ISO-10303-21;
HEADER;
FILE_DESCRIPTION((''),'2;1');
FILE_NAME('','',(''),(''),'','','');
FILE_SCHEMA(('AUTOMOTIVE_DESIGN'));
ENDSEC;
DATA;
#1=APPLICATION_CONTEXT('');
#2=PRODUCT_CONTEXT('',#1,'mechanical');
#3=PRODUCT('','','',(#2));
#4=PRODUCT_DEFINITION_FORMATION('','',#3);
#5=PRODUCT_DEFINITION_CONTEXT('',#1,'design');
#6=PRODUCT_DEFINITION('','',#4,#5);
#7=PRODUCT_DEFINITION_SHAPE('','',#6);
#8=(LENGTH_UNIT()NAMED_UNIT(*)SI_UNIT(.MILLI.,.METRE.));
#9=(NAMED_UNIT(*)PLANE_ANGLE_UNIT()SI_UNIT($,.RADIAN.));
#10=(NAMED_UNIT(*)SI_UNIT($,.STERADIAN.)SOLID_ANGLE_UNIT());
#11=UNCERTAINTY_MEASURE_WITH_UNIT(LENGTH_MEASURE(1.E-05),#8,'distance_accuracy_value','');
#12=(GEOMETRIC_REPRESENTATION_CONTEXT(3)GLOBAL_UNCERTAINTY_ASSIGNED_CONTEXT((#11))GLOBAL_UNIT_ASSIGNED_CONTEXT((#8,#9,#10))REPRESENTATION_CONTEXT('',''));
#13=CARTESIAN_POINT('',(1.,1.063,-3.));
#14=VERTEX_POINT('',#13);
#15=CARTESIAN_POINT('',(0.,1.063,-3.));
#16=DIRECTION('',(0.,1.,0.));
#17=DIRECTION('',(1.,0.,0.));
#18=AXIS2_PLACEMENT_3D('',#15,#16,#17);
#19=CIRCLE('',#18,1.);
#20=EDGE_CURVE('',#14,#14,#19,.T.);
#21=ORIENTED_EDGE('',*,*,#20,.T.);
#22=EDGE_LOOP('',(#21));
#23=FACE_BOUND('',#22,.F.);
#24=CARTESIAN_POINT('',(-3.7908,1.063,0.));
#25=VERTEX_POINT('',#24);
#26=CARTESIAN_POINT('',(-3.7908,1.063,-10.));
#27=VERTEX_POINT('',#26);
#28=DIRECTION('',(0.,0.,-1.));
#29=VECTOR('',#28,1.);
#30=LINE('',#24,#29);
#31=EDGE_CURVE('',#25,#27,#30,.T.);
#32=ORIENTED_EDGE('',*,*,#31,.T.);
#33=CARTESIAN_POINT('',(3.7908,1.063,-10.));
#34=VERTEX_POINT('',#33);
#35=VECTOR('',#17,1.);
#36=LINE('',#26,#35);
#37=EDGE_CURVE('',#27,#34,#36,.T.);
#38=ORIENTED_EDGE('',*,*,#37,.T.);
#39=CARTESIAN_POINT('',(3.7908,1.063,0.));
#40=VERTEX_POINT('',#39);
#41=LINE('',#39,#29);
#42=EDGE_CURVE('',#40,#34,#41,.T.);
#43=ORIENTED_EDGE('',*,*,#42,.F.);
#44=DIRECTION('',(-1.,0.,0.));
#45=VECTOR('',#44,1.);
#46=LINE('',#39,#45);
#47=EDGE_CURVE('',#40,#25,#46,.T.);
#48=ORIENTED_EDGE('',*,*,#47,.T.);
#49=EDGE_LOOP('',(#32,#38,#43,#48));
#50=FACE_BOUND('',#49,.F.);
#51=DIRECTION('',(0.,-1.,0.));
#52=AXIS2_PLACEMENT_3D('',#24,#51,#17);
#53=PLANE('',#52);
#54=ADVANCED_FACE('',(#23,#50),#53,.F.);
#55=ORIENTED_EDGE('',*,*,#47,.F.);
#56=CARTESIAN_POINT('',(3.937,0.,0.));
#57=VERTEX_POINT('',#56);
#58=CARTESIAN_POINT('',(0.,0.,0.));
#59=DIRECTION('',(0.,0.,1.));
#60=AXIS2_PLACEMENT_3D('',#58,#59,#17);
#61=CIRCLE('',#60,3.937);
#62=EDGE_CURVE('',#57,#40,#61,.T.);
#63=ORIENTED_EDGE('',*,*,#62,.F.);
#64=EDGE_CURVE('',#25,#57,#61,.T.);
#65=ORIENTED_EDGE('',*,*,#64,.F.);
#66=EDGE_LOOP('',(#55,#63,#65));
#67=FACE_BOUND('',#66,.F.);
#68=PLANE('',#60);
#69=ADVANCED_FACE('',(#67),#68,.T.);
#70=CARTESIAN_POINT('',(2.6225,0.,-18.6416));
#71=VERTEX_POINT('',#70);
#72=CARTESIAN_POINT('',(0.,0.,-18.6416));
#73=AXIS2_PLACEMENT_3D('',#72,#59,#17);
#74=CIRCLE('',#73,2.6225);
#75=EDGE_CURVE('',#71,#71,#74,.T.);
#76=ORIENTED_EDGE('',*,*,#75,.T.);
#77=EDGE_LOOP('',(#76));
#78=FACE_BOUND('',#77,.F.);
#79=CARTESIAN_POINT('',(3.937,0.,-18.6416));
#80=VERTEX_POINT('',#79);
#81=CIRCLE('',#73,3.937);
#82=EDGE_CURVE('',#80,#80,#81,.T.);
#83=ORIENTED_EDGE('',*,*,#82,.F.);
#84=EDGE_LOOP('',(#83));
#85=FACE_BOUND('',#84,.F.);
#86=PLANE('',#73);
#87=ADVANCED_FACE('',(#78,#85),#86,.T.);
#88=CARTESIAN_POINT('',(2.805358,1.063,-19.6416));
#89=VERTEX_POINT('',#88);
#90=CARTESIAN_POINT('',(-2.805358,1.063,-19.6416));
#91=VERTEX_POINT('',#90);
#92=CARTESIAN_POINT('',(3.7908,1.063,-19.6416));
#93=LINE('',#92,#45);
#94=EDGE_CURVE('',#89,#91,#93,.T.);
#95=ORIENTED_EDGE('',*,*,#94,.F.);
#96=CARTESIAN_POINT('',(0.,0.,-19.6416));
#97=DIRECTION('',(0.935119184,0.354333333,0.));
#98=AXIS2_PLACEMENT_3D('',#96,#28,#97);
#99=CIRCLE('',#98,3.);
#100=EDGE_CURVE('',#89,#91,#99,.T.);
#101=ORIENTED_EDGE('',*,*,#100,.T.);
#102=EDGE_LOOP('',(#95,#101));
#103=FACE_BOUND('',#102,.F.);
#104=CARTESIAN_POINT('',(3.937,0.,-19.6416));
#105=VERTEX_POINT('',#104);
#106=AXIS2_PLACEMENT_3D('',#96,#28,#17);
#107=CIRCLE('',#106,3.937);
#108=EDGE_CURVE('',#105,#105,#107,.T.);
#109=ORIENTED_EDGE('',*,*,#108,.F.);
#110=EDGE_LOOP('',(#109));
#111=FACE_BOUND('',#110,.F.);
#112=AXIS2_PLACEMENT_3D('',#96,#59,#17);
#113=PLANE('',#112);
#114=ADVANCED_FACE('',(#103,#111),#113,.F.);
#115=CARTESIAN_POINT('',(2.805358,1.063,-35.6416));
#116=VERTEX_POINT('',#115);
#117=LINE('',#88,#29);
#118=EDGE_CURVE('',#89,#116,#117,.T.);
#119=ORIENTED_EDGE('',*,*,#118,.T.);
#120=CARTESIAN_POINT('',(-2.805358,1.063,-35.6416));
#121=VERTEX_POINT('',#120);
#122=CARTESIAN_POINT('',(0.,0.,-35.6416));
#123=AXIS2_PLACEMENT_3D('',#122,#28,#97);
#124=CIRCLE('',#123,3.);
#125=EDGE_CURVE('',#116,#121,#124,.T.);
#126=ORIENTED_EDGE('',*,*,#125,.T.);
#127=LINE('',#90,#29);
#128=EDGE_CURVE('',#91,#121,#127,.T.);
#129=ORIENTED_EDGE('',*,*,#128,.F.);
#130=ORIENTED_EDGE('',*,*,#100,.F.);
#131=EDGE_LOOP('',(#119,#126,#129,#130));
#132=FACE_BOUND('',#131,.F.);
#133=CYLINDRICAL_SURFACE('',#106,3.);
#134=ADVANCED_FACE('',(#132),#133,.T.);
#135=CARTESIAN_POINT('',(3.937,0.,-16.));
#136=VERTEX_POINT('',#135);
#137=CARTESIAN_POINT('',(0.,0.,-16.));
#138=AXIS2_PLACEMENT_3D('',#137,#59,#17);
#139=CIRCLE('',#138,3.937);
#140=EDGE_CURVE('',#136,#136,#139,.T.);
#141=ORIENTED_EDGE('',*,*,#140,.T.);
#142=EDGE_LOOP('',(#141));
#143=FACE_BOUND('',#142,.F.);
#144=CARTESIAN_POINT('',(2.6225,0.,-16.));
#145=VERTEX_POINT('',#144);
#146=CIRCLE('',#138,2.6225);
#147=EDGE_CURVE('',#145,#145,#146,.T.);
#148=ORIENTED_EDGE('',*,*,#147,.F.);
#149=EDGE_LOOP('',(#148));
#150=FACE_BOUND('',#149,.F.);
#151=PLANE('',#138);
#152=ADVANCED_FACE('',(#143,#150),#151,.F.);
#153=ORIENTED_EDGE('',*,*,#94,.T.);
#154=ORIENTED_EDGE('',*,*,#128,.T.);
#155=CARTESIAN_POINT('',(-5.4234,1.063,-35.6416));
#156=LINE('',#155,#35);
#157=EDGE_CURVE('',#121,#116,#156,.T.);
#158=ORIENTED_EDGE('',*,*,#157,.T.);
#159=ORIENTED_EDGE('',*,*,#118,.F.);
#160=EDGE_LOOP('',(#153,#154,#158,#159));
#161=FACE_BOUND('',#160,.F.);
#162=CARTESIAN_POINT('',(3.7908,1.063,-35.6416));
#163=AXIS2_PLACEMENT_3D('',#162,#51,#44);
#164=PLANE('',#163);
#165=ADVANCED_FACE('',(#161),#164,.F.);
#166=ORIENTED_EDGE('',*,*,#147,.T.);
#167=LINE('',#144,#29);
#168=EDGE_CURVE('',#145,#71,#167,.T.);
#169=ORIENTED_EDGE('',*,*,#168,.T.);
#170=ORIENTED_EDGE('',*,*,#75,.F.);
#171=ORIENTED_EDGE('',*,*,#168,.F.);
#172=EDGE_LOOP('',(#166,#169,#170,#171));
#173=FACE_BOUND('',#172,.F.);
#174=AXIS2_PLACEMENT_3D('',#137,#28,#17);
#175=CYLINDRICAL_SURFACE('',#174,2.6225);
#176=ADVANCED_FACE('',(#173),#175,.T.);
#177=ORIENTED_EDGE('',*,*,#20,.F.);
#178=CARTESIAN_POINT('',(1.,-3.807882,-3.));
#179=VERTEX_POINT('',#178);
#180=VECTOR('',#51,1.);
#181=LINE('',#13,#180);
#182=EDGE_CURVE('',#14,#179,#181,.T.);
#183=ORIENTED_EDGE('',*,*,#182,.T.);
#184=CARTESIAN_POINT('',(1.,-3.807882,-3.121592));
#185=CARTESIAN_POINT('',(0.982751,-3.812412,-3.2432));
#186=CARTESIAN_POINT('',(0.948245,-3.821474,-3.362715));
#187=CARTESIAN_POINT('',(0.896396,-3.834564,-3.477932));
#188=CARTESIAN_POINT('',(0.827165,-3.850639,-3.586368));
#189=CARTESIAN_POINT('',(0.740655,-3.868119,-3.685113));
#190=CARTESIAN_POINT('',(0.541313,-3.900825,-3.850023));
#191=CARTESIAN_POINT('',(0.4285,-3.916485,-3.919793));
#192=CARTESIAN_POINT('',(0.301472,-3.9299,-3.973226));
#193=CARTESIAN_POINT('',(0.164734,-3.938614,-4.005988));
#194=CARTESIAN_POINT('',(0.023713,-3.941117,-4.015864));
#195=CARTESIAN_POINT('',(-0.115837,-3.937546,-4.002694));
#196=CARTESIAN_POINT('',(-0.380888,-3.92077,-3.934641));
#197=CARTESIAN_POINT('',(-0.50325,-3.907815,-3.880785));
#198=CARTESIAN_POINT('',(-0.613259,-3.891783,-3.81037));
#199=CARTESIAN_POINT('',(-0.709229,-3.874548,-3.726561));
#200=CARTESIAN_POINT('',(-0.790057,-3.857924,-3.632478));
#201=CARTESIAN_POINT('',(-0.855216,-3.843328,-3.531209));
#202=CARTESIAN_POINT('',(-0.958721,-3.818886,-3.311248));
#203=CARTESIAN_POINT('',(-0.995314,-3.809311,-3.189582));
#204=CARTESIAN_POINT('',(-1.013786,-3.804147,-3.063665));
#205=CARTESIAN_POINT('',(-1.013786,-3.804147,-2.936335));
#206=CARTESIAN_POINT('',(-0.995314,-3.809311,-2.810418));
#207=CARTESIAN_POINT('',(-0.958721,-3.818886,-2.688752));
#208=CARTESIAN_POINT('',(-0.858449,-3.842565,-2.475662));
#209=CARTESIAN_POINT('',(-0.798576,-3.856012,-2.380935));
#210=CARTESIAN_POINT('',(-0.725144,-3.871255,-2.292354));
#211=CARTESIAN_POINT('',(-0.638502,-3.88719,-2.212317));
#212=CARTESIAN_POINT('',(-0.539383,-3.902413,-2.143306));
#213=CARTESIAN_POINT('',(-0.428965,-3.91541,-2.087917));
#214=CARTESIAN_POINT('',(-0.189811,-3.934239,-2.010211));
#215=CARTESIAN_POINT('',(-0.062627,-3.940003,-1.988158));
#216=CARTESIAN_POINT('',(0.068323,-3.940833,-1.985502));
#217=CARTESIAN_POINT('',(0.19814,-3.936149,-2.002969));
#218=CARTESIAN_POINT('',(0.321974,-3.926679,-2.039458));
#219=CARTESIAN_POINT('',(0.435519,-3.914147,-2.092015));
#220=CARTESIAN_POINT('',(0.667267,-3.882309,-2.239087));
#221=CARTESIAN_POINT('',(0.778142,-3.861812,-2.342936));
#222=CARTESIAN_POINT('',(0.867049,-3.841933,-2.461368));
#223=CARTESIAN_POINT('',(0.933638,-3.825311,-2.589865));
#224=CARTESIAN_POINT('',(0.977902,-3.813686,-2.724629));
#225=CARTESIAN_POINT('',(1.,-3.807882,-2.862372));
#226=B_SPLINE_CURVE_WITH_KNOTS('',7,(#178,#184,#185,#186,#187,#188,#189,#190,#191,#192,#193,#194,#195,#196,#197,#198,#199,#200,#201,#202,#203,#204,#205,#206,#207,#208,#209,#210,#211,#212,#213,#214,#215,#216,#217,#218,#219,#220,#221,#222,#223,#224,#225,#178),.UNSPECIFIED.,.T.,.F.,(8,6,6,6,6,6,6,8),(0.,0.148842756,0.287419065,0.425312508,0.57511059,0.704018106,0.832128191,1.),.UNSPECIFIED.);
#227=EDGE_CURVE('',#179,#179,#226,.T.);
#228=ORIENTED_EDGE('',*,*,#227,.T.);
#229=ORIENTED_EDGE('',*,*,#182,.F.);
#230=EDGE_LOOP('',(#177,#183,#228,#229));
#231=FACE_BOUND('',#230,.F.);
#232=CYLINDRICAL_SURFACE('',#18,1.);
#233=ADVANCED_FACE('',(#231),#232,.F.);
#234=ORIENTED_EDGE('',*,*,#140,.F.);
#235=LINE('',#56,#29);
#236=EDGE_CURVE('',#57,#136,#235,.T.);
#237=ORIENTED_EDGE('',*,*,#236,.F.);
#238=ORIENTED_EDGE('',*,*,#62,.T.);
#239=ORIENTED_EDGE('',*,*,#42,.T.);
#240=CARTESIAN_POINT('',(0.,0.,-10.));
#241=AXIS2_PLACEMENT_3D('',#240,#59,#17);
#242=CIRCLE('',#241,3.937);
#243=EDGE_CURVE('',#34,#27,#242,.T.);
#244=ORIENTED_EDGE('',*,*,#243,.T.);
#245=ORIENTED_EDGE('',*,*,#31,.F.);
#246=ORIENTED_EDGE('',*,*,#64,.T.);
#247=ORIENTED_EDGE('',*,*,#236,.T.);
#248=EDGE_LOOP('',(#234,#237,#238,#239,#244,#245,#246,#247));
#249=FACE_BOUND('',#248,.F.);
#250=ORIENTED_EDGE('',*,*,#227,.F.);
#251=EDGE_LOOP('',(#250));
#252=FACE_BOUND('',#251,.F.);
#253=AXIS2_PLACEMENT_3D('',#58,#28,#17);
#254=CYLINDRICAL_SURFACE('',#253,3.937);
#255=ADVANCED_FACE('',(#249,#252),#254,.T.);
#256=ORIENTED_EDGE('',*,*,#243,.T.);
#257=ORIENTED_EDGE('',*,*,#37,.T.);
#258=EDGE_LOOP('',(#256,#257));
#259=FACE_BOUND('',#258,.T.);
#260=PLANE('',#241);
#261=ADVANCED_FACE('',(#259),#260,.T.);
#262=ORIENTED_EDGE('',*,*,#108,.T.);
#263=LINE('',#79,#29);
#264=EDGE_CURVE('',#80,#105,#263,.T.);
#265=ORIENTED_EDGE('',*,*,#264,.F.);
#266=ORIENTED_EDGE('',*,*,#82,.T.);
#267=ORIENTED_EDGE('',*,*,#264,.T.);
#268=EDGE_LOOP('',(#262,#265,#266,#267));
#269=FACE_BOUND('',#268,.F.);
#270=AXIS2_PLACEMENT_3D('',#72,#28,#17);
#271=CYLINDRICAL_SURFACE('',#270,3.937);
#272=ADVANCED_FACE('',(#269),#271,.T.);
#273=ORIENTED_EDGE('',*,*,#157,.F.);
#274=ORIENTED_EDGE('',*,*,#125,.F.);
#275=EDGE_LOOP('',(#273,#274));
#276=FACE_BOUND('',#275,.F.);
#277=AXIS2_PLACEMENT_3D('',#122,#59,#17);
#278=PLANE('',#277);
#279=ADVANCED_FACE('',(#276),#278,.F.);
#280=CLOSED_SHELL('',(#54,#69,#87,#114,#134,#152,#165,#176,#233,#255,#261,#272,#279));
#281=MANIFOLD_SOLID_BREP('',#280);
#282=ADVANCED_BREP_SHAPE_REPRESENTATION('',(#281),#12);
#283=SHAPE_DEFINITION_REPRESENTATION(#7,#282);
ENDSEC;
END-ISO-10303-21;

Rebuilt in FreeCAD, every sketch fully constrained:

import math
import FreeCAD as App
import Part
import Sketcher

V = App.Vector
Q = App.Units.Quantity


def add_polygon(sketch, points):
    """Adds a closed chain of lines whose ends are joined by coincident constraints."""
    first, n = sketch.GeometryCount, len(points)
    for a, b in zip(points, points[1:] + points[:1]):
        sketch.addGeometry(Part.LineSegment(App.Vector(*a, 0), App.Vector(*b, 0)), False)
    for i in range(n):
        sketch.addConstraint(Sketcher.Constraint("Coincident", first + i, 2, first + (i + 1) % n, 1))

doc = App.newDocument("Part")
body = doc.addObject("PartDesign::Body", "Body")

sketch1 = body.newObject("Sketcher::SketchObject", "Sketch")
sketch1.AttachmentSupport = (doc.getObject("XZ_Plane"), [""])
sketch1.MapMode = "FlatFace"
add_polygon(sketch1, [(0, -35.6), (0, 0), (3.9, 0), (3.9, -16), (2.6, -16), (2.6, -18.6), (3.9, -18.6), (3.9, -19.6), (3, -19.6), (3, -35.6)])
sketch1.addConstraint([
    Sketcher.Constraint("Vertical", 0),
    Sketcher.Constraint("Horizontal", 1),
    Sketcher.Constraint("Vertical", 2),
    Sketcher.Constraint("Horizontal", 3),
    Sketcher.Constraint("Vertical", 4),
    Sketcher.Constraint("Horizontal", 5),
    Sketcher.Constraint("Vertical", 6),
    Sketcher.Constraint("Horizontal", 7),
    Sketcher.Constraint("Vertical", 8),
    Sketcher.Constraint("Horizontal", 9),
    Sketcher.Constraint("Coincident", 0, 2, -1, 1),
    Sketcher.Constraint("Vertical", 2, 2, 5, 2),
    Sketcher.Constraint("Equal", 2, 8),
    Sketcher.Constraint("DistanceX", 9, 2, 9, 1, Q("3 mm")),
    Sketcher.Constraint("DistanceY", 2, 2, 2, 1, Q("16 mm")),
    Sketcher.Constraint("DistanceY", 6, 2, 6, 1, Q("1 mm")),
    Sketcher.Constraint("DistanceX", 1, 1, 1, 2, Q("3.937 mm")),
    Sketcher.Constraint("DistanceY", 4, 2, 4, 1, Q("2.6416 mm")),
    Sketcher.Constraint("DistanceX", -1, 1, 3, 2, Q("2.6225 mm")),
])
revolution = body.newObject("PartDesign::Revolution", "Revolution")
revolution.Profile = sketch1
revolution.ReferenceAxis = (sketch1, ["V_Axis"])
revolution.Angle = 360

sketch2 = body.newObject("Sketcher::SketchObject", "Sketch001")
sketch2.AttachmentSupport = (doc.getObject("XY_Plane"), [""])
sketch2.MapMode = "FlatFace"
sketch2.addGeometry([
    Part.LineSegment(V(-3.8, 1.1, 0), V(3.8, 1.1, 0)),
    Part.ArcOfCircle(Part.Circle(V(0, 0, 0), V(0, 0, 1), 3.9), math.radians(16), math.radians(164)),
], False)
sketch2.addConstraint([
    Sketcher.Constraint("Coincident", 0, 1, 1, 2),
    Sketcher.Constraint("Coincident", 1, 1, 0, 2),
    Sketcher.Constraint("Horizontal", 0),
    Sketcher.Constraint("Coincident", 1, 3, -1, 1),
    Sketcher.Constraint("Radius", 1, Q("3.937 mm")),
    Sketcher.Constraint("DistanceX", 0, 1, 0, 2, Q("7.5816 mm")),
])
pocket1 = body.newObject("PartDesign::Pocket", "Pocket")
pocket1.Profile = sketch2
pocket1.Length = 10

sketch3 = body.newObject("Sketcher::SketchObject", "Sketch002")
sketch3.AttachmentSupport = (doc.getObject("XZ_Plane"), [""])
sketch3.MapMode = "FlatFace"
sketch3.AttachmentOffset = App.Placement(V(0, 0, -1.063), App.Rotation())
sketch3.addGeometry(Part.Circle(V(0, -3, 0), V(0, 0, 1), 1), False)
sketch3.addConstraint([
    Sketcher.Constraint("PointOnObject", 0, 3, -2),
    Sketcher.Constraint("Diameter", 0, Q("2 mm")),
    Sketcher.Constraint("DistanceY", 0, 3, -1, 1, Q("3 mm")),
])
pocket2 = body.newObject("PartDesign::Pocket", "Pocket001")
pocket2.Profile = sketch3
pocket2.Length = 10
pocket2.Reversed = True

sketch4 = body.newObject("Sketcher::SketchObject", "Sketch003")
sketch4.AttachmentSupport = (doc.getObject("XY_Plane"), [""])
sketch4.MapMode = "FlatFace"
sketch4.AttachmentOffset = App.Placement(V(0, 0, -35.6416), App.Rotation())
add_polygon(sketch4, [(3.8, 3.8), (3.8, 1.1), (-5.4, 1.1), (-5.4, 3.8)])
sketch4.addConstraint([
    Sketcher.Constraint("Vertical", 0),
    Sketcher.Constraint("Horizontal", 1),
    Sketcher.Constraint("Vertical", 2),
    Sketcher.Constraint("Horizontal", 3),
    Sketcher.Constraint("DistanceX", 1, 2, 1, 1, Q("9.2142 mm")),
    Sketcher.Constraint("DistanceY", 0, 2, 0, 1, Q("2.7328 mm")),
    Sketcher.Constraint("DistanceY", -1, 1, 0, 2, Q("1.063 mm")),
    Sketcher.Constraint("DistanceX", -1, 1, 0, 2, Q("3.7908 mm")),
])
pocket3 = body.newObject("PartDesign::Pocket", "Pocket002")
pocket3.Profile = sketch4
pocket3.Length = 16
pocket3.Reversed = True

doc.recompute()
